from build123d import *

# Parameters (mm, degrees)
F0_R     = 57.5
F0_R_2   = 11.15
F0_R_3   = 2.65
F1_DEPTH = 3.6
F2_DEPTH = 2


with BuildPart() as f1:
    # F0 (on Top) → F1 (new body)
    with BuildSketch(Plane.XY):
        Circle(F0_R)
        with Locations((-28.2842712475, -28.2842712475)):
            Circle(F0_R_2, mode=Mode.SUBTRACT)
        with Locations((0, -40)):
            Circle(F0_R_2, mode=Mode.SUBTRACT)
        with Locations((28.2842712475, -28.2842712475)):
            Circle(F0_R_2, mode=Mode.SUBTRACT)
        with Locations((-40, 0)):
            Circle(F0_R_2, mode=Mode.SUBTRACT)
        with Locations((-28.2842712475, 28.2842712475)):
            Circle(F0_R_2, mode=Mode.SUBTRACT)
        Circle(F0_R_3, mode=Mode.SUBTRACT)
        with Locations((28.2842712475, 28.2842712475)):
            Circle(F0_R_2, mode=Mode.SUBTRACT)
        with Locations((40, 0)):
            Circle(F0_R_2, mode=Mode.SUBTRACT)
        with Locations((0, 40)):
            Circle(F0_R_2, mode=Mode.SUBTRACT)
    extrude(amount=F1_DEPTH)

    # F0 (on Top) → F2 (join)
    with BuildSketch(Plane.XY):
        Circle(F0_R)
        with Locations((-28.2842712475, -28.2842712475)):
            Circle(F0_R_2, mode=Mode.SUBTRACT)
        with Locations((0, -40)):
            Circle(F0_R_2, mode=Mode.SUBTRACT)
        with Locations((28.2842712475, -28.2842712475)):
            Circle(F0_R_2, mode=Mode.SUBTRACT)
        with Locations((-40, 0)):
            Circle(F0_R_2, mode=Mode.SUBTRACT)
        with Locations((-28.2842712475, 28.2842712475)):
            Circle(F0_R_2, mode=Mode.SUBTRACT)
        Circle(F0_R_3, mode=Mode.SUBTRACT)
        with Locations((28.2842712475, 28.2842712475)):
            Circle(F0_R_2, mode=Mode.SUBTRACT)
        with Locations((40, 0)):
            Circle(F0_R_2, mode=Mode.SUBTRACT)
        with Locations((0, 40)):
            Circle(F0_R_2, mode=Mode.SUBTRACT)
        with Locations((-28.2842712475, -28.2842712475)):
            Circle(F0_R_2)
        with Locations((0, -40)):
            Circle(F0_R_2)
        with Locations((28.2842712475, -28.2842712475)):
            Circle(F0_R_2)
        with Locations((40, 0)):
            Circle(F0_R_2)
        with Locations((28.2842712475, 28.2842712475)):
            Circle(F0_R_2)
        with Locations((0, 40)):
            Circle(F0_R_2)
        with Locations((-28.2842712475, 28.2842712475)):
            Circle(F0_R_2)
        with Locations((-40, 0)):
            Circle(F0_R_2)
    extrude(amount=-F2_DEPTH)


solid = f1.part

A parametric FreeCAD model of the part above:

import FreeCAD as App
import Part
import Sketcher
from FreeCAD import Vector

doc = App.newDocument("Part")
body = doc.addObject("PartDesign::Body", "Body")

# Sketch on XY plane
sketch1 = doc.addObject("Sketcher::SketchObject", "Sketch")
body.addObject(sketch1)
sketch1.AttachmentSupport = (doc.XY_Plane, [""])
sketch1.MapMode = "FlatFace"
sketch1.addGeometry([
    Part.Circle(Vector(0, 0, 0), Vector(0, 0, 1), 57.5),  # 0
    Part.Circle(Vector(-28.3, -28.3, 0), Vector(0, 0, 1), 11.2),  # 1
    Part.Circle(Vector(0, -40, 0), Vector(0, 0, 1), 11.2),  # 2
    Part.Circle(Vector(28.3, -28.3, 0), Vector(0, 0, 1), 11.2),  # 3
    Part.Circle(Vector(-40, 0, 0), Vector(0, 0, 1), 11.2),  # 4
    Part.Circle(Vector(-28.3, 28.3, 0), Vector(0, 0, 1), 11.2),  # 5
    Part.Circle(Vector(0, 0, 0), Vector(0, 0, 1), 2.6),  # 6
    Part.Circle(Vector(40, 0, 0), Vector(0, 0, 1), 11.2),  # 7
    Part.Circle(Vector(0, 40, 0), Vector(0, 0, 1), 11.2),  # 8
    Part.Circle(Vector(28.3, 28.3, 0), Vector(0, 0, 1), 11.2),  # 9
], False)
sketch1.addConstraint([
    Sketcher.Constraint("Coincident", 0, 3, -1, 1),
    Sketcher.Constraint("Coincident", 6, 3, -1, 1),
    Sketcher.Constraint("Equal", 1, 2),
    Sketcher.Constraint("Equal", 2, 3),
    Sketcher.Constraint("Equal", 3, 4),
    Sketcher.Constraint("Equal", 4, 5),
    Sketcher.Constraint("Equal", 5, 7),
    Sketcher.Constraint("Equal", 7, 8),
    Sketcher.Constraint("Equal", 8, 9),
    Sketcher.Constraint("Symmetric", 3, 3, 5, 3, -1, 1),
    Sketcher.Constraint("Symmetric", 4, 3, 7, 3, -1, 1),
    Sketcher.Constraint("Symmetric", 2, 3, 8, 3, -1, 1),
    Sketcher.Constraint("Symmetric", 1, 3, 9, 3, -1, 1),
    Sketcher.Constraint("Symmetric", 1, 3, 3, 3, -2),
    Sketcher.Constraint("PointOnObject", 2, 3, -2),
    Sketcher.Constraint("PointOnObject", 4, 3, -1),
    Sketcher.Constraint("Diameter", 0, 115.0),
    Sketcher.Constraint("Diameter", 1, 22.3),
    Sketcher.Constraint("Diameter", 6, 5.3),
    Sketcher.Constraint("DistanceY", 2, 3, -1, 1, 40.0),
    Sketcher.Constraint("DistanceX", 4, 3, -1, 1, 40.0),
    Sketcher.Constraint("DistanceX", 1, 3, -1, 1, 28.284271),
    Sketcher.Constraint("DistanceY", 1, 3, -1, 1, 28.284271),
])
pad1 = doc.addObject("PartDesign::Pad", "Pad")
body.addObject(pad1)
pad1.Profile = sketch1
pad1.Length = 3.6

# Sketch on XY plane
sketch2 = doc.addObject("Sketcher::SketchObject", "Sketch001")
body.addObject(sketch2)
sketch2.AttachmentSupport = (doc.XY_Plane, [""])
sketch2.MapMode = "FlatFace"
sketch2.addGeometry([
    Part.Circle(Vector(0, 0, 0), Vector(0, 0, 1), 57.5),
    Part.Circle(Vector(0, 0, 0), Vector(0, 0, 1), 2.6),
], False)
sketch2.addConstraint([
    Sketcher.Constraint("Coincident", 0, 3, -1, 1),
    Sketcher.Constraint("Coincident", 1, 3, -1, 1),
    Sketcher.Constraint("Diameter", 0, 115.0),
    Sketcher.Constraint("Diameter", 1, 5.3),
])
pad2 = doc.addObject("PartDesign::Pad", "Pad001")
body.addObject(pad2)
pad2.Profile = sketch2
pad2.Length = 2
pad2.Reversed = True

doc.recompute()
